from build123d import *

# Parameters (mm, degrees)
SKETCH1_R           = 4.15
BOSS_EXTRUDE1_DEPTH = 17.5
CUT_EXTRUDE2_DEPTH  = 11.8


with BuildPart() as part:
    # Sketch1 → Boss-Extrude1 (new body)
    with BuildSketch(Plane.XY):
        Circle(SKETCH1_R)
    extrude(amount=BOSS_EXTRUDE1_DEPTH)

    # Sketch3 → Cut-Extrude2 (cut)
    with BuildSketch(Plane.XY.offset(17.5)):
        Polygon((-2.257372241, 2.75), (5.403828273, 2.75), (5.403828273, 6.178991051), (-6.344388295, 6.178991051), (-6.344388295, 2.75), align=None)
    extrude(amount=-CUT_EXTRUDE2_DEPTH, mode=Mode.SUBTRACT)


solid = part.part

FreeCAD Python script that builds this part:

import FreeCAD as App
import Part
import Sketcher
Q = App.Units.Quantity


def add_polygon(sketch, points):
    """Adds a closed chain of lines whose ends are joined by coincident constraints."""
    first, n = sketch.GeometryCount, len(points)
    for a, b in zip(points, points[1:] + points[:1]):
        sketch.addGeometry(Part.LineSegment(App.Vector(*a, 0), App.Vector(*b, 0)), False)
    for i in range(n):
        sketch.addConstraint(Sketcher.Constraint("Coincident", first + i, 2, first + (i + 1) % n, 1))

doc = App.newDocument("Part")
body = doc.addObject("PartDesign::Body", "Body")

sketch1 = body.newObject("Sketcher::SketchObject", "Sketch")
sketch1.AttachmentSupport = (doc.getObject("XY_Plane"), [""])
sketch1.MapMode = "FlatFace"
sketch1.addGeometry(Part.Circle(App.Vector(0, 0, 0), App.Vector(0, 0, 1), 4.15), False)
sketch1.addConstraint([
    Sketcher.Constraint("Coincident", 0, 3, -1, 1),
    Sketcher.Constraint("Diameter", 0, Q("8.3 mm")),
])
pad1 = body.newObject("PartDesign::Pad", "Pad")
pad1.Profile = sketch1
pad1.Length = 17.5

sketch2 = body.newObject("Sketcher::SketchObject", "Sketch001")
sketch2.AttachmentSupport = (doc.getObject("XY_Plane"), [""])
sketch2.MapMode = "FlatFace"
sketch2.AttachmentOffset = App.Placement(App.Vector(0, 0, 17.5), App.Rotation())
add_polygon(sketch2, [(5.403828, 2.75), (5.403828, 6.178991), (-6.344388, 6.178991), (-6.344388, 2.75)])
sketch2.addConstraint([
    Sketcher.Constraint("Vertical", 0),
    Sketcher.Constraint("Horizontal", 1),
    Sketcher.Constraint("Vertical", 2),
    Sketcher.Constraint("Horizontal", 3),
    Sketcher.Constraint("DistanceY", -1, 1, 2, 2, Q("2.75 mm")),
    Sketcher.Constraint("DistanceY", 0, 1, 0, 2, Q("3.428991 mm")),
    Sketcher.Constraint("DistanceX", 1, 2, 1, 1, Q("11.748217 mm")),
    Sketcher.Constraint("DistanceX", -1, 1, 0, 2, Q("5.403828 mm")),
])
pocket1 = body.newObject("PartDesign::Pocket", "Pocket")
pocket1.Profile = sketch2
pocket1.Length = 11.8

doc.recompute()
